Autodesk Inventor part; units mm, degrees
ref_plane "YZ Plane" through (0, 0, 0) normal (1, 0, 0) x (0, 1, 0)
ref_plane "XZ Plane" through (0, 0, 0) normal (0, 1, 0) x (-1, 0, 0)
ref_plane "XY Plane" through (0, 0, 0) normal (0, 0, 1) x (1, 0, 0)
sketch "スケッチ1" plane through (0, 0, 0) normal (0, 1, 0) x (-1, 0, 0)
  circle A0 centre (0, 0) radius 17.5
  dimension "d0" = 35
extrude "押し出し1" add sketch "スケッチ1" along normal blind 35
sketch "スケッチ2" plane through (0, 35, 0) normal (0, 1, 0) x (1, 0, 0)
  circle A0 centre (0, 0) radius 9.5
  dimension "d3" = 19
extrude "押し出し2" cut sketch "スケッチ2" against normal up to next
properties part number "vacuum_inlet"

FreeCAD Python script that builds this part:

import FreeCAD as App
import Part
import Sketcher

V = App.Vector

doc = App.newDocument("Part")
body = doc.addObject("PartDesign::Body", "Body")

# Sketch on XZ plane
sketch1 = doc.addObject("Sketcher::SketchObject", "Sketch")
body.addObject(sketch1)
sketch1.AttachmentSupport = (doc.XZ_Plane, [""])
sketch1.MapMode = "FlatFace"
sketch1.addGeometry(Part.Circle(V(0, 0, 0), V(0, 0, 1), 18), False)
sketch1.addConstraint(Sketcher.Constraint("Coincident", 0, 3, -1, 1))
sketch1.addConstraint(Sketcher.Constraint("Diameter", 0, 35.0))
pad1 = doc.addObject("PartDesign::Pad", "Pad")
body.addObject(pad1)
pad1.Profile = sketch1
pad1.Length = 35
pad1.Reversed = True

# Sketch on XZ plane
sketch2 = doc.addObject("Sketcher::SketchObject", "Sketch001")
body.addObject(sketch2)
sketch2.AttachmentSupport = (doc.XZ_Plane, [""])
sketch2.MapMode = "FlatFace"
sketch2.AttachmentOffset = App.Placement(V(0, 0, -35), App.Rotation())
sketch2.addGeometry(Part.Circle(V(0, 0, 0), V(0, 0, 1), 10), False)
sketch2.addConstraint(Sketcher.Constraint("Coincident", 0, 3, -1, 1))
sketch2.addConstraint(Sketcher.Constraint("Diameter", 0, 19.0))
pocket1 = doc.addObject("PartDesign::Pocket", "Pocket")
body.addObject(pocket1)
pocket1.Profile = sketch2
pocket1.Type = "UpToFirst"
pocket1.Reversed = True

doc.recompute()
